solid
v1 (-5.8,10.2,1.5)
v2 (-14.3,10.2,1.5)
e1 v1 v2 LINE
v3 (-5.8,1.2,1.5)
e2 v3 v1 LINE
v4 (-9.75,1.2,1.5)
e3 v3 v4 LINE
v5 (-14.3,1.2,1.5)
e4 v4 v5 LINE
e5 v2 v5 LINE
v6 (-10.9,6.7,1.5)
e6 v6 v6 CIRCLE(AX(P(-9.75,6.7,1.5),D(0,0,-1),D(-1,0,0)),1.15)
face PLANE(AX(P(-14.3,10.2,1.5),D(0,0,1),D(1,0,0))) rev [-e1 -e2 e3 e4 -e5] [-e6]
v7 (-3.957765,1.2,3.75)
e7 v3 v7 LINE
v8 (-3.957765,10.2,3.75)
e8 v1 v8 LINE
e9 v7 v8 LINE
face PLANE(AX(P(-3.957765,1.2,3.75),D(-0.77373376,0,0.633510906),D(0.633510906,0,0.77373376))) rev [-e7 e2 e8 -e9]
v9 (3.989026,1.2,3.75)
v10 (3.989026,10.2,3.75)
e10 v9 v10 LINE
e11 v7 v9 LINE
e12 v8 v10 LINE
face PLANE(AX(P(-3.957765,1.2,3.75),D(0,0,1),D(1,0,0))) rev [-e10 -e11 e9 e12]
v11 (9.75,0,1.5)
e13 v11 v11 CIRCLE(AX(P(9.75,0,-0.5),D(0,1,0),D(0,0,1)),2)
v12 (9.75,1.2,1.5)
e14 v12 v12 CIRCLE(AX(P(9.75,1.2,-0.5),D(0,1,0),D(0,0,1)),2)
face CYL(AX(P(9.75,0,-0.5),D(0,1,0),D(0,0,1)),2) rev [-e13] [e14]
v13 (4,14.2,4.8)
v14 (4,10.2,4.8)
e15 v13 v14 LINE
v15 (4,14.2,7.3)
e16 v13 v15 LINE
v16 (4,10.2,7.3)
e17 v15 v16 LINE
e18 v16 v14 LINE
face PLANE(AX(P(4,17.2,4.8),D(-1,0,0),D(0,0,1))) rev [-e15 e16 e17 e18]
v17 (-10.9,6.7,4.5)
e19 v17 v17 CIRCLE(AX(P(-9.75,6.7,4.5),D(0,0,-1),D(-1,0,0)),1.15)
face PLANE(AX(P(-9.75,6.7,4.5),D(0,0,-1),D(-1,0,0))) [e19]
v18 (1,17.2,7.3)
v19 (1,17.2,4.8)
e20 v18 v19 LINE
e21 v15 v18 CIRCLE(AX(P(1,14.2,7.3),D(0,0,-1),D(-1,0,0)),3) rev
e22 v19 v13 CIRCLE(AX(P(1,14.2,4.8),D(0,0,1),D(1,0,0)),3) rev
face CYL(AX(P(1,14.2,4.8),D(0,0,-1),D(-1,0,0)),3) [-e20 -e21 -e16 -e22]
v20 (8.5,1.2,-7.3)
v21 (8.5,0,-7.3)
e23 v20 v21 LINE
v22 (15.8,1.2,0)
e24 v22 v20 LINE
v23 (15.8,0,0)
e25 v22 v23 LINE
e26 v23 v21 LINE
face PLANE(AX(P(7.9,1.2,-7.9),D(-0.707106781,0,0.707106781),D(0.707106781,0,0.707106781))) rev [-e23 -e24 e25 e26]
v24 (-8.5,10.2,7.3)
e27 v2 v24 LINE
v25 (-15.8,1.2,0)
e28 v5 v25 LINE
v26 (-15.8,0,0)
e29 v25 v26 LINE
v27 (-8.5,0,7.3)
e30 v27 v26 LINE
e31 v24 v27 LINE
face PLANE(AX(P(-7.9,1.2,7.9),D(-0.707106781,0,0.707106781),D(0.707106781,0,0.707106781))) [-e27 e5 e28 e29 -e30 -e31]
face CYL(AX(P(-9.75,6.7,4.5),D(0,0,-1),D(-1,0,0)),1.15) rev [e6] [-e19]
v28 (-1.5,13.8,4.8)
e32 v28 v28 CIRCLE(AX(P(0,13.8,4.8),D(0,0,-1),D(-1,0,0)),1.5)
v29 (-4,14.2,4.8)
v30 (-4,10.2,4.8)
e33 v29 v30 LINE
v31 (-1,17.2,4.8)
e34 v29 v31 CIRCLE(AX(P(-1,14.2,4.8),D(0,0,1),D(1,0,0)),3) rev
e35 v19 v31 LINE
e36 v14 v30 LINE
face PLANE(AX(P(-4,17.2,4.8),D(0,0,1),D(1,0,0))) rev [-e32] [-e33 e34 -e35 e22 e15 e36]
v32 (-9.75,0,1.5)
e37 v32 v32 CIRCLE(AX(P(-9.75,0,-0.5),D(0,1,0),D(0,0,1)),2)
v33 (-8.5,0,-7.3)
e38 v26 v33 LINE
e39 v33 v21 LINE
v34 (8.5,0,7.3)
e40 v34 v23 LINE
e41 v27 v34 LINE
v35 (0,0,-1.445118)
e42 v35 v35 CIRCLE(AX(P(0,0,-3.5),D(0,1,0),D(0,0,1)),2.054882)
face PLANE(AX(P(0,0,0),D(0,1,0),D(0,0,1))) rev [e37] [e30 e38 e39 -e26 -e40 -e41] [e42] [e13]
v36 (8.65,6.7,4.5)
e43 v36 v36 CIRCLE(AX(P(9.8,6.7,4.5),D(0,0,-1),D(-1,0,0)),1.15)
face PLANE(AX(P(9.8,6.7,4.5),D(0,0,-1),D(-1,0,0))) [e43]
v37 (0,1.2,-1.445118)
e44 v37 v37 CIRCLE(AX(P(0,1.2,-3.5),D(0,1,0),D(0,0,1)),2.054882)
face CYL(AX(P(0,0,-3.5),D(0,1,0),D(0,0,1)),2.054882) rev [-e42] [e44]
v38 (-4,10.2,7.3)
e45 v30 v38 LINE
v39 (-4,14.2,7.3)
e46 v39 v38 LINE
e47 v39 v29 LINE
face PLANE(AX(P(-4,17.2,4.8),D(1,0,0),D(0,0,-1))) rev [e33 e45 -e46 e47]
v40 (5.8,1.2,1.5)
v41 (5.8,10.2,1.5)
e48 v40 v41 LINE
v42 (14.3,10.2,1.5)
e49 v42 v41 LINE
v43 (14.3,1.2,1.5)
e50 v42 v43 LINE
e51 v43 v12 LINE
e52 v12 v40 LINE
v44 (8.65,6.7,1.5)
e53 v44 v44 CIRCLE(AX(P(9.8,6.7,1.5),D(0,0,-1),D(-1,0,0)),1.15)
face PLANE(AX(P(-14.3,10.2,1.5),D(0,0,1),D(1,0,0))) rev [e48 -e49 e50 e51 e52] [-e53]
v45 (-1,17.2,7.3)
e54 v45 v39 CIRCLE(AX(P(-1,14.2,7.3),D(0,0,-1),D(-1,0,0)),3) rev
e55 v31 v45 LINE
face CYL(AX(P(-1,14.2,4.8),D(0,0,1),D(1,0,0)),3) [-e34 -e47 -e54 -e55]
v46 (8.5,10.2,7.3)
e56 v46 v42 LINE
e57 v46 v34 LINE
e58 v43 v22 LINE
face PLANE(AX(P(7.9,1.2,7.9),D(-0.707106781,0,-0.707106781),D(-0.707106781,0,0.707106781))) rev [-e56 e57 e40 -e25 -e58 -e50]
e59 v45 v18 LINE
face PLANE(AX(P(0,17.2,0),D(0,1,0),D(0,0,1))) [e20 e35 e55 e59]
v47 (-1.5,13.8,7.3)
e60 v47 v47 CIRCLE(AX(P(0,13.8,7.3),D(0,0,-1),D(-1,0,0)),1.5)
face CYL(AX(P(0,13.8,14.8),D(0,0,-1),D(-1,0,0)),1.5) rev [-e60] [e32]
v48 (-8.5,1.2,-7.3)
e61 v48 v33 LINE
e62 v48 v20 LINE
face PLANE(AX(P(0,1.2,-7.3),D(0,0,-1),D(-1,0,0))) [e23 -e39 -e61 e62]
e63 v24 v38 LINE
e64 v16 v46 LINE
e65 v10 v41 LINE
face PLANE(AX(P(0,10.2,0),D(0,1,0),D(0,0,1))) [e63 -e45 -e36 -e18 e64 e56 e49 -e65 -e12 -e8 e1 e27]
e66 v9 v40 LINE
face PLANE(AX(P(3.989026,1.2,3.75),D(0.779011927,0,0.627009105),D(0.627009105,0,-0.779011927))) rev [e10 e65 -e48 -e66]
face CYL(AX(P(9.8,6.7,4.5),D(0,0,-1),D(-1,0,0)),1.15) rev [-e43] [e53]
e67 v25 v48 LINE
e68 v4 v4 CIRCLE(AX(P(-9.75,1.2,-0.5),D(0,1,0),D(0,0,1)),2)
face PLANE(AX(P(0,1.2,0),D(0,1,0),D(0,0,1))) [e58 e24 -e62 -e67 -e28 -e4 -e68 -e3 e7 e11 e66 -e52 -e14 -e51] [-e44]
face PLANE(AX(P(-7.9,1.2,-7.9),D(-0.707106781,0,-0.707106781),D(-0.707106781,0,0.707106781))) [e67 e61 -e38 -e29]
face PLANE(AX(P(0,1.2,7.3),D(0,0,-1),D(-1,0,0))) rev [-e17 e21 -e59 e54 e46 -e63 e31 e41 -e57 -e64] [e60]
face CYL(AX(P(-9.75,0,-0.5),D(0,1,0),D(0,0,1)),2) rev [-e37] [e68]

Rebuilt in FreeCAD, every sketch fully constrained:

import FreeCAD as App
import Part
import Sketcher
from FreeCAD import Vector


def edges_at(feature, points):
    """Names of the edges that pass closest to the given points."""
    edges = feature.Shape.Edges
    near = lambda p: min(range(len(edges)), key=lambda i: edges[i].distToShape(Part.Vertex(*p))[0])
    return sorted({f"Edge{near(p) + 1}" for p in points})

doc = App.newDocument("Part")
params = doc.addObject("Spreadsheet::Sheet", "Params")
for row, (alias, value) in enumerate([
    ("sketch1_width", "17 mm"),
    ("pad1_length", "1.2 mm"),
    ("sketch2_diameter", "4 mm"),
    ("sketch3_width", "17 mm"),
    ("sketch3_width2", "28.6 mm"),
    ("pad2_length", "9 mm"),
    ("sketch4_diameter", "2.3 mm"),
    ("pocket2_length", "3 mm"),
    ("sketch5_width", "8 mm"),
    ("sketch5_height", "2.5 mm"),
    ("pad3_length", "7 mm"),
    ("sketch6_diameter", "3 mm"),
    ("pocket3_length", "10 mm"),
    ("sketch7_width", "11.6 mm"),
    ("pocket4_length", "9 mm"),
    ("fillet_radius", "3 mm"),
    ("fillet2_radius", "3 mm"),
], start=1):
    params.set(f"A{row}", alias)
    params.set(f"B{row}", "=" + value)
    params.setAlias(f"B{row}", alias)

body = doc.addObject("PartDesign::Body", "Body")

sketch1 = body.newObject("Sketcher::SketchObject", "Sketch")
sketch1.AttachmentSupport = (doc.getObject("XZ_Plane"), [""])
sketch1.MapMode = "FlatFace"
sketch1.addGeometry(Part.LineSegment(Vector(-8, 7, 0), Vector(8, 7, 0)), False)
sketch1.addGeometry(Part.LineSegment(Vector(8, 7, 0), Vector(16, 0, 0)), False)
sketch1.addGeometry(Part.LineSegment(Vector(16, 0, 0), Vector(8, -7, 0)), False)
sketch1.addGeometry(Part.LineSegment(Vector(8, -7, 0), Vector(-8, -7, 0)), False)
sketch1.addGeometry(Part.LineSegment(Vector(-8, -7, 0), Vector(-16, 0, 0)), False)
sketch1.addGeometry(Part.LineSegment(Vector(-16, 0, 0), Vector(-8, 7, 0)), False)
sketch1.addConstraint(Sketcher.Constraint("Coincident", 0, 2, 1, 1))
sketch1.addConstraint(Sketcher.Constraint("Coincident", 1, 2, 2, 1))
sketch1.addConstraint(Sketcher.Constraint("Coincident", 2, 2, 3, 1))
sketch1.addConstraint(Sketcher.Constraint("Coincident", 3, 2, 4, 1))
sketch1.addConstraint(Sketcher.Constraint("Coincident", 4, 2, 5, 1))
sketch1.addConstraint(Sketcher.Constraint("Coincident", 5, 2, 0, 1))
sketch1.addConstraint(Sketcher.Constraint("Horizontal", 0))
sketch1.addConstraint(Sketcher.Constraint("Horizontal", 3))
sketch1.addConstraint(Sketcher.Constraint("Symmetric", 0, 2, 3, 2, -1, 1))
sketch1.addConstraint(Sketcher.Constraint("Symmetric", 1, 2, 4, 2, -1, 1))
sketch1.addConstraint(Sketcher.Constraint("PointOnObject", 1, 2, -1))
sketch1.addConstraint(Sketcher.Constraint("Perpendicular", 1, 2))
sketch1.addConstraint(Sketcher.Constraint("Perpendicular", 4, 5))
sketch1.addConstraint(Sketcher.Constraint("Vertical", 0, 2, 2, 2))
sketch1.addConstraint(Sketcher.Constraint("DistanceX", 0, 1, 0, 2, 17.0))
sketch1.addConstraint(Sketcher.Constraint("DistanceY", -1, 1, 0, 2, 7.3))
sketch1.setExpression("Constraints[14]", "Params.sketch1_width")
pad1 = body.newObject("PartDesign::Pad", "Pad")
pad1.Profile = sketch1
pad1.setExpression("Length", "Params.pad1_length")
pad1.Reversed = True

sketch2 = body.newObject("Sketcher::SketchObject", "Sketch001")
sketch2.AttachmentSupport = (doc.getObject("XZ_Plane"), [""])
sketch2.MapMode = "FlatFace"
sketch2.AttachmentOffset = App.Placement(Vector(0, 0, -1.2), App.Rotation())
sketch2.addGeometry(Part.Circle(Vector(-9.8, -0.5, 0), Vector(0, 0, 1), 2), False)
sketch2.addGeometry(Part.Circle(Vector(0, -3.5, 0), Vector(0, 0, 1), 2.1), False)
sketch2.addGeometry(Part.Circle(Vector(9.8, -0.5, 0), Vector(0, 0, 1), 2), False)
sketch2.addConstraint(Sketcher.Constraint("Equal", 0, 2))
sketch2.addConstraint(Sketcher.Constraint("Symmetric", 0, 3, 2, 3, -2))
sketch2.addConstraint(Sketcher.Constraint("PointOnObject", 1, 3, -2))
sketch2.addConstraint(Sketcher.Constraint("Diameter", 0, 4.0))
sketch2.addConstraint(Sketcher.Constraint("DistanceY", 1, 3, 0, 3, 3.0))
sketch2.addConstraint(Sketcher.Constraint("DistanceY", 0, 3, -1, 1, 0.5))
sketch2.addConstraint(Sketcher.Constraint("DistanceX", 0, 3, 2, 3, 19.5))
sketch2.addConstraint(Sketcher.Constraint("Diameter", 1, 4.109764))
sketch2.setExpression("Constraints[3]", "Params.sketch2_diameter")
pocket1 = body.newObject("PartDesign::Pocket", "Pocket")
pocket1.Profile = sketch2
pocket1.Type = "ThroughAll"
pocket1.Reversed = True

sketch3 = body.newObject("Sketcher::SketchObject", "Sketch002")
sketch3.AttachmentSupport = (doc.getObject("XZ_Plane"), [""])
sketch3.MapMode = "FlatFace"
sketch3.AttachmentOffset = App.Placement(Vector(0, 0, -1.2), App.Rotation())
sketch3.addGeometry(Part.LineSegment(Vector(14, 2, 0), Vector(-14, 2, 0)), False)
sketch3.addGeometry(Part.LineSegment(Vector(-14, 2, 0), Vector(-8, 7, 0)), False)
sketch3.addGeometry(Part.LineSegment(Vector(-8, 7, 0), Vector(8, 7, 0)), False)
sketch3.addGeometry(Part.LineSegment(Vector(8, 7, 0), Vector(14, 2, 0)), False)
sketch3.addConstraint(Sketcher.Constraint("Coincident", 0, 2, 1, 1))
sketch3.addConstraint(Sketcher.Constraint("Coincident", 1, 2, 2, 1))
sketch3.addConstraint(Sketcher.Constraint("Coincident", 2, 2, 3, 1))
sketch3.addConstraint(Sketcher.Constraint("Coincident", 3, 2, 0, 1))
sketch3.addConstraint(Sketcher.Constraint("Horizontal", 0))
sketch3.addConstraint(Sketcher.Constraint("Horizontal", 2))
sketch3.addConstraint(Sketcher.Constraint("Perpendicular", 1, 3))
sketch3.addConstraint(Sketcher.Constraint("Equal", 1, 3))
sketch3.addConstraint(Sketcher.Constraint("DistanceX", 2, 1, 2, 2, 17.0))
sketch3.addConstraint(Sketcher.Constraint("DistanceX", 0, 2, 0, 1, 28.6))
sketch3.addConstraint(Sketcher.Constraint("DistanceX", 0, 2, -1, 1, 14.3))
sketch3.addConstraint(Sketcher.Constraint("DistanceY", -1, 1, 0, 2, 1.5))
sketch3.setExpression("Constraints[8]", "Params.sketch3_width")
sketch3.setExpression("Constraints[9]", "Params.sketch3_width2")
pad2 = body.newObject("PartDesign::Pad", "Pad001")
pad2.Profile = sketch3
pad2.setExpression("Length", "Params.pad2_length")
pad2.Reversed = True

sketch4 = body.newObject("Sketcher::SketchObject", "Sketch003")
sketch4.AttachmentSupport = (doc.getObject("XY_Plane"), [""])
sketch4.MapMode = "FlatFace"
sketch4.AttachmentOffset = App.Placement(Vector(0, 0, 1.5), App.Rotation())
sketch4.addGeometry(Part.Circle(Vector(9.8, 6.7, 0), Vector(0, 0, 1), 1.1), False)
sketch4.addGeometry(Part.Circle(Vector(-9.8, 6.7, 0), Vector(0, 0, 1), 1.1), False)
sketch4.addConstraint(Sketcher.Constraint("Equal", 0, 1))
sketch4.addConstraint(Sketcher.Constraint("Horizontal", 0, 3, 1, 3))
sketch4.addConstraint(Sketcher.Constraint("Diameter", 0, 2.3))
sketch4.addConstraint(Sketcher.Constraint("DistanceX", -1, 1, 0, 3, 9.8))
sketch4.addConstraint(Sketcher.Constraint("DistanceY", -1, 1, 0, 3, 6.7))
sketch4.addConstraint(Sketcher.Constraint("DistanceX", 1, 3, -1, 1, 9.75))
sketch4.setExpression("Constraints[2]", "Params.sketch4_diameter")
pocket2 = body.newObject("PartDesign::Pocket", "Pocket001")
pocket2.Profile = sketch4
pocket2.setExpression("Length", "Params.pocket2_length")
pocket2.Reversed = True

sketch5 = body.newObject("Sketcher::SketchObject", "Sketch004")
sketch5.AttachmentSupport = (doc.getObject("XZ_Plane"), [""])
sketch5.MapMode = "FlatFace"
sketch5.AttachmentOffset = App.Placement(Vector(0, 0, -10.2), App.Rotation())
sketch5.addGeometry(Part.LineSegment(Vector(-4, 4.8, 0), Vector(-4, 7.3, 0)), False)
sketch5.addGeometry(Part.LineSegment(Vector(-4, 7.3, 0), Vector(4, 7.3, 0)), False)
sketch5.addGeometry(Part.LineSegment(Vector(4, 7.3, 0), Vector(4, 4.8, 0)), False)
sketch5.addGeometry(Part.LineSegment(Vector(4, 4.8, 0), Vector(-4, 4.8, 0)), False)
sketch5.addConstraint(Sketcher.Constraint("Coincident", 0, 2, 1, 1))
sketch5.addConstraint(Sketcher.Constraint("Coincident", 1, 2, 2, 1))
sketch5.addConstraint(Sketcher.Constraint("Coincident", 2, 2, 3, 1))
sketch5.addConstraint(Sketcher.Constraint("Coincident", 3, 2, 0, 1))
sketch5.addConstraint(Sketcher.Constraint("Vertical", 0))
sketch5.addConstraint(Sketcher.Constraint("Horizontal", 1))
sketch5.addConstraint(Sketcher.Constraint("Vertical", 2))
sketch5.addConstraint(Sketcher.Constraint("Horizontal", 3))
sketch5.addConstraint(Sketcher.Constraint("DistanceX", 1, 1, 1, 2, 8.0))
sketch5.addConstraint(Sketcher.Constraint("DistanceY", 0, 1, 0, 2, 2.5))
sketch5.addConstraint(Sketcher.Constraint("DistanceX", 0, 2, -1, 1, 4.0))
sketch5.addConstraint(Sketcher.Constraint("DistanceY", -1, 1, 0, 2, 7.3))
sketch5.setExpression("Constraints[8]", "Params.sketch5_width")
sketch5.setExpression("Constraints[9]", "Params.sketch5_height")
pad3 = body.newObject("PartDesign::Pad", "Pad002")
pad3.Profile = sketch5
pad3.setExpression("Length", "Params.pad3_length")
pad3.Reversed = True

sketch6 = body.newObject("Sketcher::SketchObject", "Sketch005")
sketch6.AttachmentSupport = (doc.getObject("XY_Plane"), [""])
sketch6.MapMode = "FlatFace"
sketch6.AttachmentOffset = App.Placement(Vector(0, 0, 4.8), App.Rotation())
sketch6.addGeometry(Part.Circle(Vector(0, 13.8, 0), Vector(0, 0, 1), 1.5), False)
sketch6.addConstraint(Sketcher.Constraint("PointOnObject", 0, 3, -2))
sketch6.addConstraint(Sketcher.Constraint("Diameter", 0, 3.0))
sketch6.addConstraint(Sketcher.Constraint("DistanceY", -1, 1, 0, 3, 13.8))
sketch6.setExpression("Constraints[1]", "Params.sketch6_diameter")
pocket3 = body.newObject("PartDesign::Pocket", "Pocket002")
pocket3.Profile = sketch6
pocket3.setExpression("Length", "Params.pocket3_length")
pocket3.Reversed = True

sketch7 = body.newObject("Sketcher::SketchObject", "Sketch006")
sketch7.AttachmentSupport = (doc.getObject("XZ_Plane"), [""])
sketch7.MapMode = "FlatFace"
sketch7.AttachmentOffset = App.Placement(Vector(0, 0, -10.2), App.Rotation())
sketch7.addGeometry(Part.LineSegment(Vector(-5.8, 1.5, 0), Vector(-4, 3.8, 0)), False)
sketch7.addGeometry(Part.LineSegment(Vector(-4, 3.8, 0), Vector(4, 3.8, 0)), False)
sketch7.addGeometry(Part.LineSegment(Vector(4, 3.8, 0), Vector(5.8, 1.5, 0)), False)
sketch7.addGeometry(Part.LineSegment(Vector(5.8, 1.5, 0), Vector(-5.8, 1.5, 0)), False)
sketch7.addConstraint(Sketcher.Constraint("Coincident", 0, 2, 1, 1))
sketch7.addConstraint(Sketcher.Constraint("Coincident", 1, 2, 2, 1))
sketch7.addConstraint(Sketcher.Constraint("Coincident", 2, 2, 3, 1))
sketch7.addConstraint(Sketcher.Constraint("Coincident", 3, 2, 0, 1))
sketch7.addConstraint(Sketcher.Constraint("Horizontal", 1))
sketch7.addConstraint(Sketcher.Constraint("Horizontal", 3))
sketch7.addConstraint(Sketcher.Constraint("DistanceX", 3, 2, 3, 1, 11.6))
sketch7.addConstraint(Sketcher.Constraint("DistanceX", -1, 1, 2, 2, 5.8))
sketch7.addConstraint(Sketcher.Constraint("DistanceY", -1, 1, 2, 2, 1.5))
sketch7.addConstraint(Sketcher.Constraint("DistanceY", -1, 1, 0, 2, 3.75))
sketch7.addConstraint(Sketcher.Constraint("DistanceX", 1, 1, 1, 2, 7.946791))
sketch7.addConstraint(Sketcher.Constraint("Distance", 0, 2.907977))
sketch7.setExpression("Constraints[6]", "Params.sketch7_width")
pocket4 = body.newObject("PartDesign::Pocket", "Pocket003")
pocket4.Profile = sketch7
pocket4.setExpression("Length", "Params.pocket4_length")
pocket4.Reversed = True
doc.recompute()

fillet = body.newObject("PartDesign::Fillet", "Fillet")
fillet.Base = (pocket4, edges_at(pocket4, [(4, 17.2, 6.05)]))
fillet.setExpression("Radius", "Params.fillet_radius")
doc.recompute()

fillet2 = body.newObject("PartDesign::Fillet", "Fillet001")
fillet2.Base = (fillet, edges_at(fillet, [(-4, 17.2, 6.05)]))
fillet2.setExpression("Radius", "Params.fillet2_radius")

doc.recompute()
